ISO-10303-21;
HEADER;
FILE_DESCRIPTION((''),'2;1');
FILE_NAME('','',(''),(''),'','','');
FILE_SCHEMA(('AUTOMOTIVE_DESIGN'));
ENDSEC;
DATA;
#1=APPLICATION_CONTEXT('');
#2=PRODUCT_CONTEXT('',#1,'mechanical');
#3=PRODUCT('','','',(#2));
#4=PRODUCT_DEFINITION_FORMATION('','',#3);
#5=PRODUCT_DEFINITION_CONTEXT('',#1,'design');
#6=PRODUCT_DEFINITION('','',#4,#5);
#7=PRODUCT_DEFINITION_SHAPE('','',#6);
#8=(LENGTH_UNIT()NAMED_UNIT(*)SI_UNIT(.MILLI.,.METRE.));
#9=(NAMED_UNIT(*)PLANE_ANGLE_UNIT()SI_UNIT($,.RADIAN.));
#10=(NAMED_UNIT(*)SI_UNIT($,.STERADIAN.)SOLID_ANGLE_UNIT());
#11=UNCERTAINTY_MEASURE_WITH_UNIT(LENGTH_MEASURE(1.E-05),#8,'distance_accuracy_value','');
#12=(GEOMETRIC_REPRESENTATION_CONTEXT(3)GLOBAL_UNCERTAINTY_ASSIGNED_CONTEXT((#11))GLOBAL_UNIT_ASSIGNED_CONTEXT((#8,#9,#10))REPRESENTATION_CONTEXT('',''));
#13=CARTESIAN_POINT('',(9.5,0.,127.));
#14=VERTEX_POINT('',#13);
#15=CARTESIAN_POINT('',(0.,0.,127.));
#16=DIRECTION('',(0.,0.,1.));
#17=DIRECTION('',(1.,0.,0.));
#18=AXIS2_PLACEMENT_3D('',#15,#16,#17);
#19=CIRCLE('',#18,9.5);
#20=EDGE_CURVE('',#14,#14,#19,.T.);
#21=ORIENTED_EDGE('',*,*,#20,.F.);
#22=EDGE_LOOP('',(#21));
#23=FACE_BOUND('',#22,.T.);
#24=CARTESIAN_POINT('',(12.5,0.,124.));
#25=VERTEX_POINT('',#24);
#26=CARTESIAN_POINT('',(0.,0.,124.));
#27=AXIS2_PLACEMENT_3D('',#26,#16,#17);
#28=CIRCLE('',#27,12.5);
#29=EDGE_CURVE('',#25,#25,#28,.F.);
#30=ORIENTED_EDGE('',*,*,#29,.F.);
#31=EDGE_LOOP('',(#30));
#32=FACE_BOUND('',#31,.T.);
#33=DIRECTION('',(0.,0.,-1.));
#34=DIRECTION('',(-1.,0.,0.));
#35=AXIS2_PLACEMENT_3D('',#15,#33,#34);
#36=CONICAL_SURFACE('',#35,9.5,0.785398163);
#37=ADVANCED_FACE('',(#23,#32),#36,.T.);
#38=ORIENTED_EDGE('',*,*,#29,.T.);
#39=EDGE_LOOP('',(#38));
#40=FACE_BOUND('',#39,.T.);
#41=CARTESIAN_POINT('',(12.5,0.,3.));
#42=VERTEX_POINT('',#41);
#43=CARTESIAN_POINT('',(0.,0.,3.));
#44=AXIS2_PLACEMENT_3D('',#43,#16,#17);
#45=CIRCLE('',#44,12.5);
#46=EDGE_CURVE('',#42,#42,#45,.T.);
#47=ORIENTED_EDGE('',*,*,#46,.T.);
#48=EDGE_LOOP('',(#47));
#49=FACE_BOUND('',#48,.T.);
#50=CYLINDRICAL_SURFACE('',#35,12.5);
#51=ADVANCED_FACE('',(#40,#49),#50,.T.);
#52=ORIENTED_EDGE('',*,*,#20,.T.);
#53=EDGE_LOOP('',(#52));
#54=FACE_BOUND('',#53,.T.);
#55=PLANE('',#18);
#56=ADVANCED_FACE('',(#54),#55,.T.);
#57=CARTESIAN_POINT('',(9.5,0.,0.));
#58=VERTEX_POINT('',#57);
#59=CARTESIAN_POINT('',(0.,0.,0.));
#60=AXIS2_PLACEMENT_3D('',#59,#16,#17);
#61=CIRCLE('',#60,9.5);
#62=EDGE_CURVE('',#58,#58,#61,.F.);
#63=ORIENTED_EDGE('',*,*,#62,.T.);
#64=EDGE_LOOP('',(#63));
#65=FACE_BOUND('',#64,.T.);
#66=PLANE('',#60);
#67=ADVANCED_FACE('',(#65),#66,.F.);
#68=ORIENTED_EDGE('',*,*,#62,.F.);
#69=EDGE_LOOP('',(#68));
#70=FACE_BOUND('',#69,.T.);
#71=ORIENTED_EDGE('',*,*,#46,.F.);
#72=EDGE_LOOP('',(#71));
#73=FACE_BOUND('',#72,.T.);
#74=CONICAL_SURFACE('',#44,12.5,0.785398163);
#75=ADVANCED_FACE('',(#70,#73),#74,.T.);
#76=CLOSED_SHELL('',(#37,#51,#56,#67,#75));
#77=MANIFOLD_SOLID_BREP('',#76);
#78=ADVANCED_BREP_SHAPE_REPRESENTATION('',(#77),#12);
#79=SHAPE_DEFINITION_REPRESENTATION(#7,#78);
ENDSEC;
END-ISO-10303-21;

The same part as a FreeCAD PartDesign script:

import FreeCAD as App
import Part
import Sketcher

V = App.Vector
Q = App.Units.Quantity


def edges_at(feature, points):
    """Names of the edges that pass closest to the given points."""
    edges = feature.Shape.Edges
    near = lambda p: min(range(len(edges)), key=lambda i: edges[i].distToShape(Part.Vertex(*p))[0])
    return sorted({f"Edge{near(p) + 1}" for p in points})

doc = App.newDocument("Part")
params = doc.addObject("Spreadsheet::Sheet", "Params")
for row, (alias, value) in enumerate([
    ("sketch1_diameter", "25 mm"),
    ("pad1_length", "127 mm"),
    ("chamfer_size", "3 mm"),
], start=1):
    params.set(f"A{row}", alias)
    params.set(f"B{row}", "=" + value)
    params.setAlias(f"B{row}", alias)

body = doc.addObject("PartDesign::Body", "Body")

sketch1 = body.newObject("Sketcher::SketchObject", "Sketch")
sketch1.AttachmentSupport = (doc.getObject("XY_Plane"), [""])
sketch1.MapMode = "FlatFace"
sketch1.addGeometry(Part.Circle(V(0, 0, 0), V(0, 0, 1), 12), False)
sketch1.addConstraint([
    Sketcher.Constraint("Coincident", 0, 3, -1, 1),
    Sketcher.Constraint("Diameter", 0, Q("25 mm")),
])
sketch1.setExpression("Constraints[1]", "Params.sketch1_diameter")
pad1 = body.newObject("PartDesign::Pad", "Pad")
pad1.Profile = sketch1
pad1.setExpression("Length", "Params.pad1_length")
doc.recompute()

chamfer = body.newObject("PartDesign::Chamfer", "Chamfer")
chamfer.Base = (pad1, edges_at(pad1, [(-12.5, 0, 0), (-12.5, 0, 127)]))
chamfer.setExpression("Size", "Params.chamfer_size")

doc.recompute()
